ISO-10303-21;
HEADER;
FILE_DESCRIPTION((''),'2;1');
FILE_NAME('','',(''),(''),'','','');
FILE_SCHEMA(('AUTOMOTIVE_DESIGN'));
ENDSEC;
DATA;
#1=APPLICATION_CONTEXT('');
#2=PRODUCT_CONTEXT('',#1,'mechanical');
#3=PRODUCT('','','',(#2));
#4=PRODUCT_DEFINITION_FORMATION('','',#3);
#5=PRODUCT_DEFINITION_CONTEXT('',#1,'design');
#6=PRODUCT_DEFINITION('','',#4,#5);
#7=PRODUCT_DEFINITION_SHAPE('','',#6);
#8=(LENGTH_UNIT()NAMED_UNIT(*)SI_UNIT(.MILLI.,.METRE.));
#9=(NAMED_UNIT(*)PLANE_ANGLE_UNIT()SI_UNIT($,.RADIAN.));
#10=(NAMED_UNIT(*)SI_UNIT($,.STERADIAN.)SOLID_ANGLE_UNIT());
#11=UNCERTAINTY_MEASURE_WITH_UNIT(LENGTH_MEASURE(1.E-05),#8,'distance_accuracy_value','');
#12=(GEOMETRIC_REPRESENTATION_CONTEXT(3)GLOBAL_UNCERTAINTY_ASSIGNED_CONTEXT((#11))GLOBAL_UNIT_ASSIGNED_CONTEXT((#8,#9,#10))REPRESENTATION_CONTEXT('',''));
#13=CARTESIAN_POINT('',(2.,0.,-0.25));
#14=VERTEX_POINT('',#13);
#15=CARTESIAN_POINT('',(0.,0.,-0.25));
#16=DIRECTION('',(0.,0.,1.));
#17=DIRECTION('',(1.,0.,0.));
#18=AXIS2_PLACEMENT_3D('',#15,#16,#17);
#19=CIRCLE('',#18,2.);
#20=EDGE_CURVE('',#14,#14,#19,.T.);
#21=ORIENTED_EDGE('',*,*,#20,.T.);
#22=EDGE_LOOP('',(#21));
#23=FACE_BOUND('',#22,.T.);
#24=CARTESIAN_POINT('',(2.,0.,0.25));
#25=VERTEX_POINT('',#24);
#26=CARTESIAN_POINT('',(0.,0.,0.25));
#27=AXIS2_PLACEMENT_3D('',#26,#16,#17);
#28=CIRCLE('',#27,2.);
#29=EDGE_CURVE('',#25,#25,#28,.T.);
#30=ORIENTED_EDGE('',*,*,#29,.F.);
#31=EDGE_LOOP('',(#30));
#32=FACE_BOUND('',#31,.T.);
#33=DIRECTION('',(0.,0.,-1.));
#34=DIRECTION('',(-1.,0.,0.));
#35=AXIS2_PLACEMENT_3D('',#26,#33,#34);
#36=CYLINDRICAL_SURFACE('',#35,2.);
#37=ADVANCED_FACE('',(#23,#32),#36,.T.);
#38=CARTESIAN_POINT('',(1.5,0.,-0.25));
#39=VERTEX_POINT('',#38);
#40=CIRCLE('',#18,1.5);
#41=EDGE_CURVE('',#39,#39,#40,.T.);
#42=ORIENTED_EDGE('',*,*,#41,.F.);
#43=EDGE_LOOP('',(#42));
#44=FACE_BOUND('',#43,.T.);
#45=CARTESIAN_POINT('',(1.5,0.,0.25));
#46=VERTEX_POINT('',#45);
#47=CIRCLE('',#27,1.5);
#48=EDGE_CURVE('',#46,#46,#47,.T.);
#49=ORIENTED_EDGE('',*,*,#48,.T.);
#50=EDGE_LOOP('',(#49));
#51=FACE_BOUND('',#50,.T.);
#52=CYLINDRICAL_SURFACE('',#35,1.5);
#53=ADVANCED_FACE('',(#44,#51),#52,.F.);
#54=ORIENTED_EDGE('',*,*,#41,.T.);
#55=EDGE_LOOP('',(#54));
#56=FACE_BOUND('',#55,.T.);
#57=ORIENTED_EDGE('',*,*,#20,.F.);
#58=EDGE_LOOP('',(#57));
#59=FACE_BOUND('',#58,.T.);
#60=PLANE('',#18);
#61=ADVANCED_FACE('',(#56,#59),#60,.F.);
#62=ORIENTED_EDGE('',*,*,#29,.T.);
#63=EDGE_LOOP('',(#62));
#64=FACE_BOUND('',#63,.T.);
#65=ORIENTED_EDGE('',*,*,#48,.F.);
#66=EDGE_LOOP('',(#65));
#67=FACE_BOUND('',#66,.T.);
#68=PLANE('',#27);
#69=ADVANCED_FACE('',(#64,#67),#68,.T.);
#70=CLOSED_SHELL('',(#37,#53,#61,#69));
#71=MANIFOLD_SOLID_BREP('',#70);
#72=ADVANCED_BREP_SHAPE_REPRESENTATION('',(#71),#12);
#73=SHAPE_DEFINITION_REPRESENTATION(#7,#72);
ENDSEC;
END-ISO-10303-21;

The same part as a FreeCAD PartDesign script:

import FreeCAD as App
import Part
import Sketcher
from FreeCAD import Vector

doc = App.newDocument("Part")
params = doc.addObject("Spreadsheet::Sheet", "Params")
for row, (alias, value) in enumerate([
    ("sketch1_diameter", "4 mm"),
    ("sketch1_diameter2", "3 mm"),
    ("pad1_length", "0.5 mm"),
], start=1):
    params.set(f"A{row}", alias)
    params.set(f"B{row}", "=" + value)
    params.setAlias(f"B{row}", alias)

body = doc.addObject("PartDesign::Body", "Body")

# Sketch on XY plane
sketch1 = body.newObject("Sketcher::SketchObject", "Sketch")
sketch1.AttachmentSupport = (doc.getObject("XY_Plane"), [""])
sketch1.MapMode = "FlatFace"
sketch1.addGeometry([
    Part.Circle(Vector(0, 0, 0), Vector(0, 0, 1), 2),
    Part.Circle(Vector(0, 0, 0), Vector(0, 0, 1), 1.5),
], False)
sketch1.addConstraint([
    Sketcher.Constraint("Coincident", 0, 3, -1, 1),
    Sketcher.Constraint("Coincident", 1, 3, -1, 1),
    Sketcher.Constraint("Diameter", 0, 4.0),
    Sketcher.Constraint("Diameter", 1, 3.0),
])
sketch1.setExpression("Constraints[2]", "Params.sketch1_diameter")
sketch1.setExpression("Constraints[3]", "Params.sketch1_diameter2")
pad1 = body.newObject("PartDesign::Pad", "Pad")
pad1.Profile = sketch1
pad1.setExpression("Length", "Params.pad1_length")
pad1.Midplane = True

doc.recompute()
